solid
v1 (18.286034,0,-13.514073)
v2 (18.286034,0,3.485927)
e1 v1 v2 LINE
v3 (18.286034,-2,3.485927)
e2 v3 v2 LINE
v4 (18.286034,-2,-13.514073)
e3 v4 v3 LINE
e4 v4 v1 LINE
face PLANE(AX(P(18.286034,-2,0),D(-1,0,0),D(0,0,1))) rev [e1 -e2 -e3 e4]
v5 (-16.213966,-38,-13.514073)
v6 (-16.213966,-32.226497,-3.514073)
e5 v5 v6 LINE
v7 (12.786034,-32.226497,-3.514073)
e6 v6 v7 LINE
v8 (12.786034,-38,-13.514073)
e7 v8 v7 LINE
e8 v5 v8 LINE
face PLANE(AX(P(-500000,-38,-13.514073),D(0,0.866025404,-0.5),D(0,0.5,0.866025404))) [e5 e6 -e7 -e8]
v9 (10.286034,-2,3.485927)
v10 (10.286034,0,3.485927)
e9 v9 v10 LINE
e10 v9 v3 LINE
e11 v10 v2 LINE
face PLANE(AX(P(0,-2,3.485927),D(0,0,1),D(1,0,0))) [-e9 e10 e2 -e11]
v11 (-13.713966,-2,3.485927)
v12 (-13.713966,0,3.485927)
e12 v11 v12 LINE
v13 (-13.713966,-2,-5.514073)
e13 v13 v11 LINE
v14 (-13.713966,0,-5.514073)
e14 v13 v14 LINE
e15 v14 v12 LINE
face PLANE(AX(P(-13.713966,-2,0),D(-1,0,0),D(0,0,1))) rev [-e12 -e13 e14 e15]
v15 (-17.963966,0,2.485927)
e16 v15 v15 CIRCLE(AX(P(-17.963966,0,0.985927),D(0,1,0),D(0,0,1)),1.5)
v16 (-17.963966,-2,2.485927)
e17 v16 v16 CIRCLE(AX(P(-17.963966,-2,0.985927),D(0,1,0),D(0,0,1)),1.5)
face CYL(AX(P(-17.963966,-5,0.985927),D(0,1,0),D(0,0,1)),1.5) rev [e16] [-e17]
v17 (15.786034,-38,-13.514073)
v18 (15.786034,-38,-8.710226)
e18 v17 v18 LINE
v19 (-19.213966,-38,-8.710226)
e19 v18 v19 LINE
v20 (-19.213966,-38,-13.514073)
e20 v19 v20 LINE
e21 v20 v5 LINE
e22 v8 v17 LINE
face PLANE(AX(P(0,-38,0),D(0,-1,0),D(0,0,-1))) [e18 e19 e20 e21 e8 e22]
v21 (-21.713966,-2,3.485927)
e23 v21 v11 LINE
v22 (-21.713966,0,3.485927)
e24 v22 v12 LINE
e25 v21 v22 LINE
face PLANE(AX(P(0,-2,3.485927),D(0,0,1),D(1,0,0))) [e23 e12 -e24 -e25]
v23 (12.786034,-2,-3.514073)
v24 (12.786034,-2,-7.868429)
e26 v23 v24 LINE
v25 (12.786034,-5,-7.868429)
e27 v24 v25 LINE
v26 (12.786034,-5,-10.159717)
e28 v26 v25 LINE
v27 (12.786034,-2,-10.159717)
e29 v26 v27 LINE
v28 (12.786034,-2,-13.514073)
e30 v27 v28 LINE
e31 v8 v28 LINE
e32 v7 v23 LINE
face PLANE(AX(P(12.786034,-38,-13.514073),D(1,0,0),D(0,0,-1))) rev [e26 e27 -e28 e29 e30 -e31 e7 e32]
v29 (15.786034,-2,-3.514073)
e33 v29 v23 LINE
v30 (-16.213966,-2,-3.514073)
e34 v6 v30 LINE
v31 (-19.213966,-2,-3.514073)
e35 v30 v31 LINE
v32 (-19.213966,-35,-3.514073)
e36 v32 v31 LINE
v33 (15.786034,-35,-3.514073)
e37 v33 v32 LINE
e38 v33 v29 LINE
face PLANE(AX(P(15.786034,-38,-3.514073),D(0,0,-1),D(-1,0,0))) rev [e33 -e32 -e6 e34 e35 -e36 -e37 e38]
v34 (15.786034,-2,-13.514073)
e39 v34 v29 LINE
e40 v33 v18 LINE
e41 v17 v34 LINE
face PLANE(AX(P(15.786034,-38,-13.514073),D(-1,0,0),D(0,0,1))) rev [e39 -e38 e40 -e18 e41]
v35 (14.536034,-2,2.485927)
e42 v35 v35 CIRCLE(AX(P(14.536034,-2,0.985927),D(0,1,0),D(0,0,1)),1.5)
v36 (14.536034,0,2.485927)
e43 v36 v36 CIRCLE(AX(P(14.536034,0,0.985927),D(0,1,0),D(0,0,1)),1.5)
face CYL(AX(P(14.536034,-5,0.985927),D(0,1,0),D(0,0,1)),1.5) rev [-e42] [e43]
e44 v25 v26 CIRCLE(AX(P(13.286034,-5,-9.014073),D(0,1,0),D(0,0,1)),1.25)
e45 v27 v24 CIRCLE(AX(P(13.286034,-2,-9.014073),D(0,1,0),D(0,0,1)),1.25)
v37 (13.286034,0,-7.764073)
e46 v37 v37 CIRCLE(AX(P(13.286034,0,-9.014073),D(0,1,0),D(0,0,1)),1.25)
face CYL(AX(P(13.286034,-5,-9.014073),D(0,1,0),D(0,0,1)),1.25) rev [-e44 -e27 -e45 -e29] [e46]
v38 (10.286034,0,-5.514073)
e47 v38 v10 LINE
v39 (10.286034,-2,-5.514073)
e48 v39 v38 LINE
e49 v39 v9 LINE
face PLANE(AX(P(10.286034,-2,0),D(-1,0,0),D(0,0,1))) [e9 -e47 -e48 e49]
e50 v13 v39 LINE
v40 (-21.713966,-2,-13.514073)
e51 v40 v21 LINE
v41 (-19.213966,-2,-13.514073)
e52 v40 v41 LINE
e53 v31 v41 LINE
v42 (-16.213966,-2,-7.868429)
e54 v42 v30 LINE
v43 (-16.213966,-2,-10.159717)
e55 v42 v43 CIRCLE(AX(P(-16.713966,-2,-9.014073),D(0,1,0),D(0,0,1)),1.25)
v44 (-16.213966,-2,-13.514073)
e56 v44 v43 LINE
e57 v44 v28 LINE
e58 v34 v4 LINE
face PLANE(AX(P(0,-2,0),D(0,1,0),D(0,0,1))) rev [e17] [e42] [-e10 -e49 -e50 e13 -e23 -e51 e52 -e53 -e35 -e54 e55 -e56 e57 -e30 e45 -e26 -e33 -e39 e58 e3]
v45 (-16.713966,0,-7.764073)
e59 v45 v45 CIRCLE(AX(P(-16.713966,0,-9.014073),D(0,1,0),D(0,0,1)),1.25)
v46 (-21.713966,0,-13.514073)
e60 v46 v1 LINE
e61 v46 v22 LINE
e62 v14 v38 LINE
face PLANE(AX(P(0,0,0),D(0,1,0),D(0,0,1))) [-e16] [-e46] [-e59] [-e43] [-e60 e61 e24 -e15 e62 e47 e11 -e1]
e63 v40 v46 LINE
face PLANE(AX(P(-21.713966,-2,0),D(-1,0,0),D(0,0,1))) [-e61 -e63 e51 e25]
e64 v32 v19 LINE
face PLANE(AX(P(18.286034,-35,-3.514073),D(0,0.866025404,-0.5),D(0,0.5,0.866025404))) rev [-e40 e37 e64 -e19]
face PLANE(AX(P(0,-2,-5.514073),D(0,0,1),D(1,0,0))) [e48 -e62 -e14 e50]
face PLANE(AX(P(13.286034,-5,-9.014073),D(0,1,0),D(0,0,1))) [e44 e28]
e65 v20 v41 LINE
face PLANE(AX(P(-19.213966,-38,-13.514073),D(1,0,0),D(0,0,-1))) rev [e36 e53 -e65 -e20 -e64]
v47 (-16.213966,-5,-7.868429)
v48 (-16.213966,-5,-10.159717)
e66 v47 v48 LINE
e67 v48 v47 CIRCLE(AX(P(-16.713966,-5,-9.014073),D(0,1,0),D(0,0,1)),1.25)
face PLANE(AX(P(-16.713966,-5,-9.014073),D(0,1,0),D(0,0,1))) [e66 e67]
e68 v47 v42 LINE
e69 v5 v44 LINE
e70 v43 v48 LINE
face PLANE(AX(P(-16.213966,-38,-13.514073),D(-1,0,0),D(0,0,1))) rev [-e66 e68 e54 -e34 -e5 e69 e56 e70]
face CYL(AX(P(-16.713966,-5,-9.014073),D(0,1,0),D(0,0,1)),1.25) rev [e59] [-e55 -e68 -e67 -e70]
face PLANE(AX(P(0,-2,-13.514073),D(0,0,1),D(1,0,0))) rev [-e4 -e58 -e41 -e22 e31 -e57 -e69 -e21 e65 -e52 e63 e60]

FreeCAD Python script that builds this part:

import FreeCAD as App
import Part
import Sketcher

V = App.Vector
Q = App.Units.Quantity


def add_polygon(sketch, points):
    """Adds a closed chain of lines whose ends are joined by coincident constraints."""
    first, n = sketch.GeometryCount, len(points)
    for a, b in zip(points, points[1:] + points[:1]):
        sketch.addGeometry(Part.LineSegment(App.Vector(*a, 0), App.Vector(*b, 0)), False)
    for i in range(n):
        sketch.addConstraint(Sketcher.Constraint("Coincident", first + i, 2, first + (i + 1) % n, 1))

doc = App.newDocument("Part")
body = doc.addObject("PartDesign::Body", "Body")

# Sketch on XZ plane
sketch1 = doc.addObject("Sketcher::SketchObject", "Sketch")
body.addObject(sketch1)
sketch1.AttachmentSupport = (doc.XZ_Plane, [""])
sketch1.MapMode = "FlatFace"
add_polygon(sketch1, [(-22, -14), (-22, 3), (-14, 3), (-14, -6), (10, -6), (10, 3), (18, 3), (18, -14)])  # lines 0-7
sketch1.addConstraint([
    Sketcher.Constraint("Vertical", 0),
    Sketcher.Constraint("Horizontal", 1),
    Sketcher.Constraint("Vertical", 2),
    Sketcher.Constraint("Horizontal", 3),
    Sketcher.Constraint("Vertical", 4),
    Sketcher.Constraint("Horizontal", 5),
    Sketcher.Constraint("Vertical", 6),
    Sketcher.Constraint("Horizontal", 7),
    Sketcher.Constraint("Horizontal", 1, 2, 4, 2),
    Sketcher.Constraint("Equal", 1, 5),
    Sketcher.Constraint("DistanceX", 1, 1, 1, 2, 8.0),
    Sketcher.Constraint("DistanceX", 3, 1, 3, 2, 24.0),
    Sketcher.Constraint("DistanceY", 0, 1, 0, 2, 17.0),
    Sketcher.Constraint("DistanceY", 2, 2, 2, 1, 9.0),
    Sketcher.Constraint("DistanceX", 0, 2, -1, 1, 21.713966),
    Sketcher.Constraint("DistanceY", -1, 1, 0, 2, 3.485927),
])
pad1 = doc.addObject("PartDesign::Pad", "Pad")
body.addObject(pad1)
pad1.Profile = sketch1
pad1.Length = 2

# Sketch on XZ plane
sketch2 = doc.addObject("Sketcher::SketchObject", "Sketch001")
body.addObject(sketch2)
sketch2.AttachmentSupport = (doc.XZ_Plane, [""])
sketch2.MapMode = "FlatFace"
sketch2.AttachmentOffset = App.Placement(V(0, 0, 2), App.Rotation())
add_polygon(sketch2, [(15.8, -13.5), (15.8, -3.5), (12.8, -3.5), (12.8, -13.5)])  # lines 0-3
add_polygon(sketch2, [(-16.2, -13.5), (-16.2, -3.5), (-19.2, -3.5), (-19.2, -13.5)])  # lines 4-7
sketch2.addConstraint([
    Sketcher.Constraint("Vertical", 0),
    Sketcher.Constraint("Horizontal", 1),
    Sketcher.Constraint("Vertical", 2),
    Sketcher.Constraint("Horizontal", 3),
    Sketcher.Constraint("Vertical", 4),
    Sketcher.Constraint("Horizontal", 5),
    Sketcher.Constraint("Vertical", 6),
    Sketcher.Constraint("Horizontal", 7),
    Sketcher.Constraint("Horizontal", 1, 2, 4, 2),
    Sketcher.Constraint("Horizontal", 3, 2, 6, 2),
    Sketcher.Constraint("Equal", 3, 5),
    Sketcher.Constraint("DistanceX", 1, 2, 1, 1, 3.0),
    Sketcher.Constraint("DistanceY", 0, 1, 0, 2, 10.0),
    Sketcher.Constraint("DistanceX", 4, 2, 1, 2, 29.0),
    Sketcher.Constraint("DistanceX", -1, 1, 0, 2, 15.786034),
    Sketcher.Constraint("DistanceY", 0, 2, -1, 1, 3.514073),
])
pad2 = doc.addObject("PartDesign::Pad", "Pad001")
body.addObject(pad2)
pad2.Profile = sketch2
pad2.Length = 36

# Sketch on YZ plane
sketch3 = doc.addObject("Sketcher::SketchObject", "Sketch002")
body.addObject(sketch3)
sketch3.AttachmentSupport = (doc.YZ_Plane, [""])
sketch3.MapMode = "FlatFace"
sketch3.AttachmentOffset = App.Placement(V(0, 0, 12.786034), App.Rotation())
add_polygon(sketch3, [(-32, -4), (-38, -14), (-38, -4)])  # lines 0-2
sketch3.addConstraint([
    Sketcher.Constraint("Vertical", 1),
    Sketcher.Constraint("Horizontal", 2),
    Sketcher.Constraint("DistanceY", 1, 1, 1, 2, 10.0),
    Sketcher.Constraint("Angle", 0, Q("-120 deg")),
    Sketcher.Constraint("DistanceX", 0, 2, -1, 1, 38.0),
    Sketcher.Constraint("DistanceY", 0, 2, -1, 1, 13.514073),
])
pad3 = doc.addObject("PartDesign::Pad", "Pad002")
body.addObject(pad3)
pad3.Profile = sketch3
pad3.Type = "UpToFirst"
pad3.Reversed = True

# Sketch on YZ plane
sketch4 = doc.addObject("Sketcher::SketchObject", "Sketch003")
body.addObject(sketch4)
sketch4.AttachmentSupport = (doc.YZ_Plane, [""])
sketch4.MapMode = "FlatFace"
sketch4.AttachmentOffset = App.Placement(V(0, 0, -19.213966), App.Rotation())
add_polygon(sketch4, [(-38, -3.5), (-35, -3.5), (-38, -8.7)])  # lines 0-2
sketch4.addConstraint([
    Sketcher.Constraint("Horizontal", 0),
    Sketcher.Constraint("Vertical", 2),
    Sketcher.Constraint("DistanceX", 0, 1, 0, 2, 3.0),
    Sketcher.Constraint("Angle", 1, Q("-120 deg")),
    Sketcher.Constraint("DistanceX", 0, 2, -1, 1, 35.0),
    Sketcher.Constraint("DistanceY", 0, 2, -1, 1, 3.514073),
])
pocket1 = doc.addObject("PartDesign::Pocket", "Pocket")
body.addObject(pocket1)
pocket1.Profile = sketch4
pocket1.Type = "ThroughAll"
pocket1.Reversed = True

# Sketch on XZ plane
sketch5 = doc.addObject("Sketcher::SketchObject", "Sketch004")
body.addObject(sketch5)
sketch5.AttachmentSupport = (doc.XZ_Plane, [""])
sketch5.MapMode = "FlatFace"
sketch5.addGeometry([
    Part.Circle(V(-16.7, -9, 0), V(0, 0, 1), 1.2),
    Part.Circle(V(13.3, -9, 0), V(0, 0, 1), 1.2),
    Part.Circle(V(-18, 1, 0), V(0, 0, 1), 1.5),
    Part.Circle(V(14.5, 1, 0), V(0, 0, 1), 1.5),
], False)
sketch5.addConstraint([
    Sketcher.Constraint("Equal", 0, 1),
    Sketcher.Constraint("Equal", 2, 3),
    Sketcher.Constraint("Horizontal", 0, 3, 1, 3),
    Sketcher.Constraint("Horizontal", 2, 3, 3, 3),
    Sketcher.Constraint("Diameter", 2, 3.0),
    Sketcher.Constraint("Diameter", 0, 2.5),
    Sketcher.Constraint("DistanceX", 0, 3, 1, 3, 30.0),
    Sketcher.Constraint("DistanceY", 0, 3, 2, 3, 10.0),
    Sketcher.Constraint("DistanceX", 2, 3, 3, 3, 32.5),
    Sketcher.Constraint("DistanceX", 2, 3, 0, 3, 1.25),
    Sketcher.Constraint("DistanceX", 0, 3, -1, 1, 16.713966),
    Sketcher.Constraint("DistanceY", 0, 3, -1, 1, 9.014073),
])
pocket2 = doc.addObject("PartDesign::Pocket", "Pocket001")
body.addObject(pocket2)
pocket2.Profile = sketch5
pocket2.Length = 5
pocket2.Reversed = True

doc.recompute()
